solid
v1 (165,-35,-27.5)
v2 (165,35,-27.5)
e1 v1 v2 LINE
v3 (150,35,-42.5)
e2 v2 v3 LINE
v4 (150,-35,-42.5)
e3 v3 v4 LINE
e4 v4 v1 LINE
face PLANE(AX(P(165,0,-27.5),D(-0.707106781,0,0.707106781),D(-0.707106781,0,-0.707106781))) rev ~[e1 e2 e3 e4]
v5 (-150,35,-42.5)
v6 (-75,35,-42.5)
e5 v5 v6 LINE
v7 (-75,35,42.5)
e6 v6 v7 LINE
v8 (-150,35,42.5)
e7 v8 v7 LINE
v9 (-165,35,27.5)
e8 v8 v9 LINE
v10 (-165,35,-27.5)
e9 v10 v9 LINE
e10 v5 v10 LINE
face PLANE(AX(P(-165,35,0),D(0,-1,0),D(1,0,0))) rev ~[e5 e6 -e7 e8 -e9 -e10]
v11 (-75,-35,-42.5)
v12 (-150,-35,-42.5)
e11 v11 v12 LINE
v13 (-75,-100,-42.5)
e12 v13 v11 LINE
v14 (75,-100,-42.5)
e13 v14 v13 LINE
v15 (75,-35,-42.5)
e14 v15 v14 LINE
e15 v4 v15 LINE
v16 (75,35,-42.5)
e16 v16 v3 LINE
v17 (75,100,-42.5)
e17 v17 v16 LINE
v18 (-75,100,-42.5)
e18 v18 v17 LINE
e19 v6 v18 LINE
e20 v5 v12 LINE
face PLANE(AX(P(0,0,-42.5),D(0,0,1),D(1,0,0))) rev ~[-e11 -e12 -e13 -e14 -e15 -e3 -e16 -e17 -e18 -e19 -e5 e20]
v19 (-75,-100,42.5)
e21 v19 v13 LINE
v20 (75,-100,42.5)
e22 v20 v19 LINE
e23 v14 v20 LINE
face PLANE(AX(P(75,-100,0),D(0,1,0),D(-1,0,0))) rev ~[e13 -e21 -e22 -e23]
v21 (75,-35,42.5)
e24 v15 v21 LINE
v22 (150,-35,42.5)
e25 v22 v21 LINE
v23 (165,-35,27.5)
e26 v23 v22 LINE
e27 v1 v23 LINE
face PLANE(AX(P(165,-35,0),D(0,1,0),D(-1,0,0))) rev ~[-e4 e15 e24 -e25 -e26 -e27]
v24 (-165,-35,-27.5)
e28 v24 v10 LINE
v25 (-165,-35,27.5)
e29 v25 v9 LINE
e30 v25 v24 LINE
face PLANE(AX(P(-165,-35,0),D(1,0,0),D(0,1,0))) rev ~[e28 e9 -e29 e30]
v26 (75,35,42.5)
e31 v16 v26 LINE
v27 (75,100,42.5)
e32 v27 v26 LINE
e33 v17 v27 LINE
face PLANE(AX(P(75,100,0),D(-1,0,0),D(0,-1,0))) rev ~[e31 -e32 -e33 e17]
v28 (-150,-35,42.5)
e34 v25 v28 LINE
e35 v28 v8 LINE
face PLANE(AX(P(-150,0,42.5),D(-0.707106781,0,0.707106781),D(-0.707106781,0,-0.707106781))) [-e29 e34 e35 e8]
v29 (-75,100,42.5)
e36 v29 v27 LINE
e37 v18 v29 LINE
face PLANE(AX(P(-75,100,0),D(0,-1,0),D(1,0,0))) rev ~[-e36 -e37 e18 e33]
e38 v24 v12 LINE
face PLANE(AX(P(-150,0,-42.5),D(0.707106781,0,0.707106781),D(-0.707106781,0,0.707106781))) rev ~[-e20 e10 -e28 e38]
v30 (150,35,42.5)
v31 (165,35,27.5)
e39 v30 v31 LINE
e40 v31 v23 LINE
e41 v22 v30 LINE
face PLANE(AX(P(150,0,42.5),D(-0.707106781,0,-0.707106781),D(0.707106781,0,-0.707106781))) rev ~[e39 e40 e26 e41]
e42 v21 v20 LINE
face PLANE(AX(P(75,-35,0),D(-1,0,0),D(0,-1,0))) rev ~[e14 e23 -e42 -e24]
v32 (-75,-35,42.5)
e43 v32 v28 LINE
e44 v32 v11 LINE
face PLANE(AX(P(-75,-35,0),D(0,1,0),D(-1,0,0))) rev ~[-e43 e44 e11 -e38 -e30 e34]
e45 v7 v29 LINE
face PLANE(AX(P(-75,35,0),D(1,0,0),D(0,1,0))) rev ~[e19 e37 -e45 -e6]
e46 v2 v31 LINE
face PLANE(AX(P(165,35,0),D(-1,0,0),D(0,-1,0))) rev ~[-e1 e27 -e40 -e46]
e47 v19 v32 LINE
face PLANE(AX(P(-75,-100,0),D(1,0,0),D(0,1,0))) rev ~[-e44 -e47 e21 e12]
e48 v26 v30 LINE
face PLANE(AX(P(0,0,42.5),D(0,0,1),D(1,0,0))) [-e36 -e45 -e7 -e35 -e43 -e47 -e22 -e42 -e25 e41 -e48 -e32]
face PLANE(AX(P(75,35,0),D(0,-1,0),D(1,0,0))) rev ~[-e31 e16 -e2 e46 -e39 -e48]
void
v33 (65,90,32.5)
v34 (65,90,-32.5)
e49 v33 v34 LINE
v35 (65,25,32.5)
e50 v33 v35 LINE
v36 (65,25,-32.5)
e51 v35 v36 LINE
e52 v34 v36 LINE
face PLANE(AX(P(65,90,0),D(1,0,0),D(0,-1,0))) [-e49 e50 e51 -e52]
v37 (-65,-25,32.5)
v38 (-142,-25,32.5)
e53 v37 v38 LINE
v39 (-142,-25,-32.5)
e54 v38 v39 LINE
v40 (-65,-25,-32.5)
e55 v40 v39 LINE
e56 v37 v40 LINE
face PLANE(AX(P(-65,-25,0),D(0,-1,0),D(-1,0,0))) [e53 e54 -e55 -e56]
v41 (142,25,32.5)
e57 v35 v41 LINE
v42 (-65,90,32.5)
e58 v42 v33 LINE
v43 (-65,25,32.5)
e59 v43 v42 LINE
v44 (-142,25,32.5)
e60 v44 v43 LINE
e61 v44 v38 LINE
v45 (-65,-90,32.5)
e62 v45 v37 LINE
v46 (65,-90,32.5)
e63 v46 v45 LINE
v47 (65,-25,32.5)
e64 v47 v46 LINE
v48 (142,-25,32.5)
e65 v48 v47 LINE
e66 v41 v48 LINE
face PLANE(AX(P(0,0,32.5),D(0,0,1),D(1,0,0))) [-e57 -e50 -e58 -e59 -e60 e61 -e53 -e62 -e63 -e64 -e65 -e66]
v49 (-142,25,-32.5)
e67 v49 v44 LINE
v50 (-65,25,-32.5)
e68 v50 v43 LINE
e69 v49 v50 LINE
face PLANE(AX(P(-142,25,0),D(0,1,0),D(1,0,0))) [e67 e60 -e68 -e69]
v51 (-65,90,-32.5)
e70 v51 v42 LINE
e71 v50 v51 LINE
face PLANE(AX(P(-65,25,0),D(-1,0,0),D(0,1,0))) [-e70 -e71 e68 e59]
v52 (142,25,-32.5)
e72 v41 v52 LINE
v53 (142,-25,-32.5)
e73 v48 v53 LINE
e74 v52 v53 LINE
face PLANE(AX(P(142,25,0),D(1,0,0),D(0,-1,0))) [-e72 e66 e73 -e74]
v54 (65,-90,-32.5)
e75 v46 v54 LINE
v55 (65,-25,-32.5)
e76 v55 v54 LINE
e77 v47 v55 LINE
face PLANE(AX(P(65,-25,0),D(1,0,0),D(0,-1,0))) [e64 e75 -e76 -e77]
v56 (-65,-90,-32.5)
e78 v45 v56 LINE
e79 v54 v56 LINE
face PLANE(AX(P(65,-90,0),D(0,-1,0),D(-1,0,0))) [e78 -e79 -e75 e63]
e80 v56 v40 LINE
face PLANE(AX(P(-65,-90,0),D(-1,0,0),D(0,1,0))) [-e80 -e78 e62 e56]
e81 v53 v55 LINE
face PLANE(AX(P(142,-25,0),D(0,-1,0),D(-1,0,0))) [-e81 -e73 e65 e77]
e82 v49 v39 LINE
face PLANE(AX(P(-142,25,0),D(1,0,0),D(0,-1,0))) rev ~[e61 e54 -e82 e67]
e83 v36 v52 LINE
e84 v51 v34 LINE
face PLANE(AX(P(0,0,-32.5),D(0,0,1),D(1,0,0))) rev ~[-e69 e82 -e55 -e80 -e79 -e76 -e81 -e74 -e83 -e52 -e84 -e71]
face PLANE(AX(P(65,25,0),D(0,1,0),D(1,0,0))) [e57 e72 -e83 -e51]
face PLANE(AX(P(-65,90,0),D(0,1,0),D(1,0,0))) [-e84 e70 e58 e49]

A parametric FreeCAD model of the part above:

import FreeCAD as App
import Part
import Sketcher

doc = App.newDocument("Part")
body = doc.addObject("PartDesign::Body", "Body")

sketch1 = body.newObject("Sketcher::SketchObject", "Sketch")
sketch1.AttachmentSupport = (doc.getObject("XY_Plane"), [""])
sketch1.MapMode = "FlatFace"
sketch1.addGeometry([
    Part.LineSegment(App.Vector(-75, -100, 0), App.Vector(75, -100, 0)),
    Part.LineSegment(App.Vector(75, -100, 0), App.Vector(75, -35, 0)),
    Part.LineSegment(App.Vector(75, -35, 0), App.Vector(165, -35, 0)),
    Part.LineSegment(App.Vector(165, -35, 0), App.Vector(165, 35, 0)),
    Part.LineSegment(App.Vector(165, 35, 0), App.Vector(75, 35, 0)),
    Part.LineSegment(App.Vector(75, 35, 0), App.Vector(75, 100, 0)),
    Part.LineSegment(App.Vector(75, 100, 0), App.Vector(-75, 100, 0)),
    Part.LineSegment(App.Vector(-75, 100, 0), App.Vector(-75, 35, 0)),
    Part.LineSegment(App.Vector(-75, 35, 0), App.Vector(-165, 35, 0)),
    Part.LineSegment(App.Vector(-165, 35, 0), App.Vector(-165, -35, 0)),
    Part.LineSegment(App.Vector(-165, -35, 0), App.Vector(-75, -35, 0)),
    Part.LineSegment(App.Vector(-75, -35, 0), App.Vector(-75, -100, 0)),
], False)
sketch1.addConstraint([
    Sketcher.Constraint("Coincident", 0, 2, 1, 1),
    Sketcher.Constraint("Coincident", 1, 2, 2, 1),
    Sketcher.Constraint("Coincident", 2, 2, 3, 1),
    Sketcher.Constraint("Coincident", 3, 2, 4, 1),
    Sketcher.Constraint("Coincident", 4, 2, 5, 1),
    Sketcher.Constraint("Coincident", 5, 2, 6, 1),
    Sketcher.Constraint("Coincident", 6, 2, 7, 1),
    Sketcher.Constraint("Coincident", 7, 2, 8, 1),
    Sketcher.Constraint("Coincident", 8, 2, 9, 1),
    Sketcher.Constraint("Coincident", 9, 2, 10, 1),
    Sketcher.Constraint("Coincident", 10, 2, 11, 1),
    Sketcher.Constraint("Coincident", 11, 2, 0, 1),
    Sketcher.Constraint("Horizontal", 0),
    Sketcher.Constraint("Vertical", 1),
    Sketcher.Constraint("Horizontal", 2),
    Sketcher.Constraint("Vertical", 3),
    Sketcher.Constraint("Horizontal", 4),
    Sketcher.Constraint("Vertical", 5),
    Sketcher.Constraint("Horizontal", 6),
    Sketcher.Constraint("Vertical", 7),
    Sketcher.Constraint("Horizontal", 8),
    Sketcher.Constraint("Vertical", 9),
    Sketcher.Constraint("Horizontal", 10),
    Sketcher.Constraint("Vertical", 11),
    Sketcher.Constraint("Symmetric", 0, 2, 6, 2, -1, 1),
    Sketcher.Constraint("Symmetric", 2, 2, 8, 2, -1, 1),
    Sketcher.Constraint("Symmetric", 4, 2, 10, 2, -1, 1),
    Sketcher.Constraint("Symmetric", 4, 2, 7, 2, -2),
    Sketcher.Constraint("DistanceX", 0, 1, 0, 2, 150.0),
    Sketcher.Constraint("DistanceY", 3, 1, 3, 2, 70.0),
    Sketcher.Constraint("DistanceY", 0, 2, 5, 2, 200.0),
    Sketcher.Constraint("DistanceX", 2, 1, 2, 2, 90.0),
])
pad1 = body.newObject("PartDesign::Pad", "Pad")
pad1.Profile = sketch1
pad1.Length = 85
pad1.Midplane = True

sketch2 = body.newObject("Sketcher::SketchObject", "Sketch001")
sketch2.AttachmentSupport = (doc.getObject("XZ_Plane"), [""])
sketch2.MapMode = "FlatFace"
sketch2.addGeometry([
    Part.LineSegment(App.Vector(165, 27.5, 0), App.Vector(150, 42.5, 0)),
    Part.LineSegment(App.Vector(150, 42.5, 0), App.Vector(165, 42.5, 0)),
    Part.LineSegment(App.Vector(165, 42.5, 0), App.Vector(165, 27.5, 0)),
    Part.LineSegment(App.Vector(150, -42.5, 0), App.Vector(165, -27.5, 0)),
    Part.LineSegment(App.Vector(165, -27.5, 0), App.Vector(165, -42.5, 0)),
    Part.LineSegment(App.Vector(165, -42.5, 0), App.Vector(150, -42.5, 0)),
    Part.LineSegment(App.Vector(-165, 42.5, 0), App.Vector(-150, 42.5, 0)),
    Part.LineSegment(App.Vector(-150, 42.5, 0), App.Vector(-165, 27.5, 0)),
    Part.LineSegment(App.Vector(-165, 27.5, 0), App.Vector(-165, 42.5, 0)),
    Part.LineSegment(App.Vector(-165, -42.5, 0), App.Vector(-165, -27.5, 0)),
    Part.LineSegment(App.Vector(-165, -27.5, 0), App.Vector(-150, -42.5, 0)),
    Part.LineSegment(App.Vector(-150, -42.5, 0), App.Vector(-165, -42.5, 0)),
], False)
sketch2.addConstraint([
    Sketcher.Constraint("Coincident", 0, 2, 1, 1),
    Sketcher.Constraint("Coincident", 1, 2, 2, 1),
    Sketcher.Constraint("Coincident", 2, 2, 0, 1),
    Sketcher.Constraint("Coincident", 3, 2, 4, 1),
    Sketcher.Constraint("Coincident", 4, 2, 5, 1),
    Sketcher.Constraint("Coincident", 5, 2, 3, 1),
    Sketcher.Constraint("Coincident", 6, 2, 7, 1),
    Sketcher.Constraint("Coincident", 7, 2, 8, 1),
    Sketcher.Constraint("Coincident", 8, 2, 6, 1),
    Sketcher.Constraint("Coincident", 9, 2, 10, 1),
    Sketcher.Constraint("Coincident", 10, 2, 11, 1),
    Sketcher.Constraint("Coincident", 11, 2, 9, 1),
    Sketcher.Constraint("Horizontal", 1),
    Sketcher.Constraint("Vertical", 2),
    Sketcher.Constraint("Vertical", 4),
    Sketcher.Constraint("Horizontal", 5),
    Sketcher.Constraint("Horizontal", 6),
    Sketcher.Constraint("Vertical", 8),
    Sketcher.Constraint("Vertical", 9),
    Sketcher.Constraint("Horizontal", 11),
    Sketcher.Constraint("Symmetric", 5, 2, 6, 2, -1, 1),
    Sketcher.Constraint("Symmetric", 3, 2, 7, 2, -1, 1),
    Sketcher.Constraint("Symmetric", 2, 2, 9, 2, -1, 1),
    Sketcher.Constraint("Symmetric", 0, 2, 10, 2, -1, 1),
    Sketcher.Constraint("Symmetric", 0, 2, 6, 2, -2),
    Sketcher.Constraint("Symmetric", 2, 2, 7, 2, -2),
    Sketcher.Constraint("Perpendicular", 0, 3),
    Sketcher.Constraint("DistanceX", 1, 1, 1, 2, 15.0),
    Sketcher.Constraint("DistanceX", -1, 1, 0, 2, 150.0),
    Sketcher.Constraint("DistanceY", 3, 2, 2, 2, 55.0),
])
pocket1 = body.newObject("PartDesign::Pocket", "Pocket")
pocket1.Profile = sketch2
pocket1.Type = "ThroughAll"
pocket1.Midplane = True

sketch3 = body.newObject("Sketcher::SketchObject", "Sketch002")
sketch3.AttachmentSupport = (doc.getObject("XY_Plane"), [""])
sketch3.MapMode = "FlatFace"
sketch3.addGeometry([
    Part.LineSegment(App.Vector(65, 90, 0), App.Vector(-65, 90, 0)),
    Part.LineSegment(App.Vector(-65, 90, 0), App.Vector(-65, 25, 0)),
    Part.LineSegment(App.Vector(-65, 25, 0), App.Vector(-142, 25, 0)),
    Part.LineSegment(App.Vector(-142, 25, 0), App.Vector(-142, -25, 0)),
    Part.LineSegment(App.Vector(-142, -25, 0), App.Vector(-65, -25, 0)),
    Part.LineSegment(App.Vector(-65, -25, 0), App.Vector(-65, -90, 0)),
    Part.LineSegment(App.Vector(-65, -90, 0), App.Vector(65, -90, 0)),
    Part.LineSegment(App.Vector(65, -90, 0), App.Vector(65, -25, 0)),
    Part.LineSegment(App.Vector(65, -25, 0), App.Vector(142, -25, 0)),
    Part.LineSegment(App.Vector(142, -25, 0), App.Vector(142, 25, 0)),
    Part.LineSegment(App.Vector(142, 25, 0), App.Vector(65, 25, 0)),
    Part.LineSegment(App.Vector(65, 25, 0), App.Vector(65, 90, 0)),
], False)
sketch3.addConstraint([
    Sketcher.Constraint("Coincident", 0, 2, 1, 1),
    Sketcher.Constraint("Coincident", 1, 2, 2, 1),
    Sketcher.Constraint("Coincident", 2, 2, 3, 1),
    Sketcher.Constraint("Coincident", 3, 2, 4, 1),
    Sketcher.Constraint("Coincident", 4, 2, 5, 1),
    Sketcher.Constraint("Coincident", 5, 2, 6, 1),
    Sketcher.Constraint("Coincident", 6, 2, 7, 1),
    Sketcher.Constraint("Coincident", 7, 2, 8, 1),
    Sketcher.Constraint("Coincident", 8, 2, 9, 1),
    Sketcher.Constraint("Coincident", 9, 2, 10, 1),
    Sketcher.Constraint("Coincident", 10, 2, 11, 1),
    Sketcher.Constraint("Coincident", 11, 2, 0, 1),
    Sketcher.Constraint("Horizontal", 0),
    Sketcher.Constraint("Vertical", 1),
    Sketcher.Constraint("Horizontal", 2),
    Sketcher.Constraint("Vertical", 3),
    Sketcher.Constraint("Horizontal", 4),
    Sketcher.Constraint("Vertical", 5),
    Sketcher.Constraint("Horizontal", 6),
    Sketcher.Constraint("Vertical", 7),
    Sketcher.Constraint("Horizontal", 8),
    Sketcher.Constraint("Vertical", 9),
    Sketcher.Constraint("Horizontal", 10),
    Sketcher.Constraint("Vertical", 11),
    Sketcher.Constraint("Symmetric", 0, 2, 6, 2, -1, 1),
    Sketcher.Constraint("Symmetric", 2, 2, 8, 2, -1, 1),
    Sketcher.Constraint("Symmetric", 4, 2, 10, 2, -1, 1),
    Sketcher.Constraint("Symmetric", 4, 2, 7, 2, -2),
    Sketcher.Constraint("DistanceX", 0, 2, 0, 1, 130.0),
    Sketcher.Constraint("DistanceX", 2, 2, 2, 1, 77.0),
    Sketcher.Constraint("DistanceY", 1, 2, 1, 1, 65.0),
    Sketcher.Constraint("DistanceY", 3, 2, 3, 1, 50.0),
])
pocket2 = body.newObject("PartDesign::Pocket", "Pocket001")
pocket2.Profile = sketch3
pocket2.Length = 65
pocket2.Midplane = True

doc.recompute()
